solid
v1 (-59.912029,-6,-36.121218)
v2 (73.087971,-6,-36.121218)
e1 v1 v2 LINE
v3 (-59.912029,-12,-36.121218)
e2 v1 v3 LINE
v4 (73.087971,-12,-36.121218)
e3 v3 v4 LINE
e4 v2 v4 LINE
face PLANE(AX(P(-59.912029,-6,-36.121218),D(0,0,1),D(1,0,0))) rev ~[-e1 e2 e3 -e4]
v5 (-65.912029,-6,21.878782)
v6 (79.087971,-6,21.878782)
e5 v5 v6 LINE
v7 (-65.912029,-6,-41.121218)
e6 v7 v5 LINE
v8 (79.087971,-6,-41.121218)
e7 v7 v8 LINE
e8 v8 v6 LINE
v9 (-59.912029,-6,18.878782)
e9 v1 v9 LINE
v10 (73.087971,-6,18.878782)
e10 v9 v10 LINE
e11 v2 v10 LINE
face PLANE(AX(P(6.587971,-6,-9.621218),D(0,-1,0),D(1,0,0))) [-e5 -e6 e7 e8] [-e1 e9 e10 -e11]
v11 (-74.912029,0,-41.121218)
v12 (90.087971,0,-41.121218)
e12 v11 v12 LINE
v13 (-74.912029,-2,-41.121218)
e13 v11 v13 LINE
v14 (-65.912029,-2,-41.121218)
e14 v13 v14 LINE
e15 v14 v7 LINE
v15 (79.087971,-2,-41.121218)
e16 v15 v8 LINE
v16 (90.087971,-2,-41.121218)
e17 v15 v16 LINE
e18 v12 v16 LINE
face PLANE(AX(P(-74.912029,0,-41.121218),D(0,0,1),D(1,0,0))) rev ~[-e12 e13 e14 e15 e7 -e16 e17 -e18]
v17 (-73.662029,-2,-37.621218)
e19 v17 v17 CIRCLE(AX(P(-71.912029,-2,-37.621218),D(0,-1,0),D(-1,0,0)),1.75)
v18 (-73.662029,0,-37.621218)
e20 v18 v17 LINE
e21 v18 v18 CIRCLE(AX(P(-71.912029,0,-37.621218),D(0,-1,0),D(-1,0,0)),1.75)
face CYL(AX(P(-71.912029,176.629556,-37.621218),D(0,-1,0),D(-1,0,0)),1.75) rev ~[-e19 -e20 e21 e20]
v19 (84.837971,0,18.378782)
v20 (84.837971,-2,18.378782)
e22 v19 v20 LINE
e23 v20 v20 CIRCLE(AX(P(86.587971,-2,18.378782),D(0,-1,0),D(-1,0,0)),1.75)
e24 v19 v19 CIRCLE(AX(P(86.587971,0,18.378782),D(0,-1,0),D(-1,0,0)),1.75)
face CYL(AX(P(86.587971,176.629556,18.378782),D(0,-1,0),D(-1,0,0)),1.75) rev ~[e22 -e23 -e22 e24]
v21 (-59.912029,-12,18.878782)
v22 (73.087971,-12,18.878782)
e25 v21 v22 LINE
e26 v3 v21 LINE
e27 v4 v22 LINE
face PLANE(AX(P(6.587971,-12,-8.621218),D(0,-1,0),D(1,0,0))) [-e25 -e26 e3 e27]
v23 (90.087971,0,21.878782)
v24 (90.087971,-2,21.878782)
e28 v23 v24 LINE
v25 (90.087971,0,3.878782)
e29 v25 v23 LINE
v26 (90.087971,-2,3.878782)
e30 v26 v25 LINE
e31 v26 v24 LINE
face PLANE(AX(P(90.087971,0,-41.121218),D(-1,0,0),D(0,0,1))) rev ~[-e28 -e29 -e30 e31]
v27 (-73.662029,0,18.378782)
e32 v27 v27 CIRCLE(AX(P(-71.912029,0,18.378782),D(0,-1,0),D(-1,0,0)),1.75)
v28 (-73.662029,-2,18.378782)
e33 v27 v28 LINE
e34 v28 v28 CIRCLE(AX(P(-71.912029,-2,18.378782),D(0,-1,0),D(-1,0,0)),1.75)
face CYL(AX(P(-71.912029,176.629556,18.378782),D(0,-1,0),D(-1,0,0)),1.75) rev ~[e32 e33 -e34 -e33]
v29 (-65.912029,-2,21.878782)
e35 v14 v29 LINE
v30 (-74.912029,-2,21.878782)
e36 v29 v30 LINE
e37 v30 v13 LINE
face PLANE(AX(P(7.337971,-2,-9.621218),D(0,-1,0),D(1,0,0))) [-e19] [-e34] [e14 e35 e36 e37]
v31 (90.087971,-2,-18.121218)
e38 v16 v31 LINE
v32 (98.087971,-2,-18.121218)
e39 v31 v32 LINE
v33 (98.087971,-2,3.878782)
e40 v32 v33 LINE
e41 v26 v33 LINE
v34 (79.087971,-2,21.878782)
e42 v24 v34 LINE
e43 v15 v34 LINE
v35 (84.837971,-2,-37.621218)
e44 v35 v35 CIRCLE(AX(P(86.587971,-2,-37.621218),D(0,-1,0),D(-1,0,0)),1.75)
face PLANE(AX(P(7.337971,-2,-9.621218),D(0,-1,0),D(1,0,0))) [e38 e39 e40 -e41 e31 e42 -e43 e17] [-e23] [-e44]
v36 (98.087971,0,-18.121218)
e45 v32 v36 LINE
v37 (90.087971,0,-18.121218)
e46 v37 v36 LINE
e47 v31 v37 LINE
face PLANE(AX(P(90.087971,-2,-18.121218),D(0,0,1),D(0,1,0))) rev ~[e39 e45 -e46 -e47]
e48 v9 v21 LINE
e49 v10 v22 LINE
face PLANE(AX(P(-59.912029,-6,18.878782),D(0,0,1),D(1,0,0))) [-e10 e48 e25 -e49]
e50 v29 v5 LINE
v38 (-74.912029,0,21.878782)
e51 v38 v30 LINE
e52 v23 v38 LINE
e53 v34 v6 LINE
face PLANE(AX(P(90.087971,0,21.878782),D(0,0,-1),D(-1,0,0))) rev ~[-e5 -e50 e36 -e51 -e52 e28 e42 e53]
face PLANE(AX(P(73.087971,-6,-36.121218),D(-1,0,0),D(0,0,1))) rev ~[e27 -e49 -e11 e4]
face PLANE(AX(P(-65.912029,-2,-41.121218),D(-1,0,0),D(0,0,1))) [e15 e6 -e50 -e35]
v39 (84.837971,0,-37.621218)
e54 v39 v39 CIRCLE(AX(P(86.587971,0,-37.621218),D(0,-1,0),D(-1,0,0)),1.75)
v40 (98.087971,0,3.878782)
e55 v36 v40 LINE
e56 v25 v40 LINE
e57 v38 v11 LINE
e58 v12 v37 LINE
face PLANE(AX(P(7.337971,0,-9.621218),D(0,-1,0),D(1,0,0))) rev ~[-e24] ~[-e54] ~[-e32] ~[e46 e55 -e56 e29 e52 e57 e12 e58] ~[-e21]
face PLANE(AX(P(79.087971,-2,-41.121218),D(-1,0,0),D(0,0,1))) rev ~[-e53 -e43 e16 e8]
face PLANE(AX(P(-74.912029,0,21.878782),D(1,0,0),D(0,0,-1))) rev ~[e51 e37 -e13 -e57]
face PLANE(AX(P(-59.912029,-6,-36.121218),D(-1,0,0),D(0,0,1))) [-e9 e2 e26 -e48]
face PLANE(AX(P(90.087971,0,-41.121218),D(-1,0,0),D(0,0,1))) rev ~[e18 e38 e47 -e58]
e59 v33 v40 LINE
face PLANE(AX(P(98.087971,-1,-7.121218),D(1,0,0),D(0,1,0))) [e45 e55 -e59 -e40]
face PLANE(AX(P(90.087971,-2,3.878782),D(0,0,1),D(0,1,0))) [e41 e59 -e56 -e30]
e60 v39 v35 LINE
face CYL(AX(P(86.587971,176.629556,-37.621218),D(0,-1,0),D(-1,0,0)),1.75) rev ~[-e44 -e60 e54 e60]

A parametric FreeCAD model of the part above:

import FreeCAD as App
import Part
import Sketcher
from FreeCAD import Vector
Q = App.Units.Quantity

doc = App.newDocument("Part")
body = doc.addObject("PartDesign::Body", "Body")

# Sketch on XZ plane
sketch1 = body.newObject("Sketcher::SketchObject", "Sketch")
sketch1.AttachmentSupport = (doc.getObject("XZ_Plane"), [""])
sketch1.MapMode = "FlatFace"
sketch1.addGeometry(Part.LineSegment(Vector(-75, 22, 0), Vector(-75, -41, 0)), False)
sketch1.addGeometry(Part.LineSegment(Vector(-75, -41, 0), Vector(90, -41, 0)), False)
sketch1.addGeometry(Part.LineSegment(Vector(90, -41, 0), Vector(90, 22, 0)), False)
sketch1.addGeometry(Part.LineSegment(Vector(90, 22, 0), Vector(-75, 22, 0)), False)
sketch1.addConstraint(Sketcher.Constraint("Coincident", 0, 2, 1, 1))
sketch1.addConstraint(Sketcher.Constraint("Coincident", 1, 2, 2, 1))
sketch1.addConstraint(Sketcher.Constraint("Coincident", 2, 2, 3, 1))
sketch1.addConstraint(Sketcher.Constraint("Coincident", 3, 2, 0, 1))
sketch1.addConstraint(Sketcher.Constraint("Vertical", 0))
sketch1.addConstraint(Sketcher.Constraint("Horizontal", 1))
sketch1.addConstraint(Sketcher.Constraint("Vertical", 2))
sketch1.addConstraint(Sketcher.Constraint("Horizontal", 3))
sketch1.addConstraint(Sketcher.Constraint("DistanceX", 1, 1, 1, 2, Q("165 mm")))
sketch1.addConstraint(Sketcher.Constraint("DistanceY", 0, 2, 0, 1, Q("63 mm")))
sketch1.addConstraint(Sketcher.Constraint("DistanceX", 0, 2, -1, 1, Q("74.912029 mm")))
sketch1.addConstraint(Sketcher.Constraint("DistanceY", 0, 2, -1, 1, Q("41.121218 mm")))
pad1 = body.newObject("PartDesign::Pad", "Pad")
pad1.Profile = sketch1
pad1.Length = 2

# Sketch on XZ plane
sketch2 = body.newObject("Sketcher::SketchObject", "Sketch001")
sketch2.AttachmentSupport = (doc.getObject("XZ_Plane"), [""])
sketch2.MapMode = "FlatFace"
sketch2.addGeometry(Part.Circle(Vector(-71.9, 18.4, 0), Vector(0, 0, 1), 1.8), False)
sketch2.addGeometry(Part.Circle(Vector(86.6, 18.4, 0), Vector(0, 0, 1), 1.8), False)
sketch2.addGeometry(Part.Circle(Vector(86.6, -37.6, 0), Vector(0, 0, 1), 1.8), False)
sketch2.addGeometry(Part.Circle(Vector(-71.9, -37.6, 0), Vector(0, 0, 1), 1.8), False)
sketch2.addConstraint(Sketcher.Constraint("Equal", 0, 1))
sketch2.addConstraint(Sketcher.Constraint("Equal", 1, 2))
sketch2.addConstraint(Sketcher.Constraint("Equal", 2, 3))
sketch2.addConstraint(Sketcher.Constraint("Horizontal", 0, 3, 1, 3))
sketch2.addConstraint(Sketcher.Constraint("Horizontal", 2, 3, 3, 3))
sketch2.addConstraint(Sketcher.Constraint("Vertical", 1, 3, 2, 3))
sketch2.addConstraint(Sketcher.Constraint("Vertical", 0, 3, 3, 3))
sketch2.addConstraint(Sketcher.Constraint("Diameter", 0, Q("3.5 mm")))
sketch2.addConstraint(Sketcher.Constraint("DistanceY", 2, 3, 1, 3, Q("56 mm")))
sketch2.addConstraint(Sketcher.Constraint("DistanceX", 0, 3, 1, 3, Q("158.5 mm")))
sketch2.addConstraint(Sketcher.Constraint("DistanceX", 0, 3, -1, 1, Q("71.912029 mm")))
sketch2.addConstraint(Sketcher.Constraint("DistanceY", -1, 1, 0, 3, Q("18.378782 mm")))
doc.recompute()
hole = body.newObject("PartDesign::Hole", "Hole")
hole.Profile = sketch2
hole.ThreadType = "None"
hole.Diameter = 3.5
hole.DepthType = "ThroughAll"
hole.Reversed = True

# Sketch on XZ plane
sketch3 = body.newObject("Sketcher::SketchObject", "Sketch002")
sketch3.AttachmentSupport = (doc.getObject("XZ_Plane"), [""])
sketch3.MapMode = "FlatFace"
sketch3.AttachmentOffset = App.Placement(Vector(0, 0, 2), App.Rotation())
sketch3.addGeometry(Part.LineSegment(Vector(-66, 22, 0), Vector(-66, -41, 0)), False)
sketch3.addGeometry(Part.LineSegment(Vector(-66, -41, 0), Vector(79, -41, 0)), False)
sketch3.addGeometry(Part.LineSegment(Vector(79, -41, 0), Vector(79, 22, 0)), False)
sketch3.addGeometry(Part.LineSegment(Vector(79, 22, 0), Vector(-66, 22, 0)), False)
sketch3.addConstraint(Sketcher.Constraint("Coincident", 0, 2, 1, 1))
sketch3.addConstraint(Sketcher.Constraint("Coincident", 1, 2, 2, 1))
sketch3.addConstraint(Sketcher.Constraint("Coincident", 2, 2, 3, 1))
sketch3.addConstraint(Sketcher.Constraint("Coincident", 3, 2, 0, 1))
sketch3.addConstraint(Sketcher.Constraint("Vertical", 0))
sketch3.addConstraint(Sketcher.Constraint("Horizontal", 1))
sketch3.addConstraint(Sketcher.Constraint("Vertical", 2))
sketch3.addConstraint(Sketcher.Constraint("Horizontal", 3))
sketch3.addConstraint(Sketcher.Constraint("DistanceX", 1, 1, 1, 2, Q("145 mm")))
sketch3.addConstraint(Sketcher.Constraint("DistanceY", 0, 2, 0, 1, Q("63 mm")))
sketch3.addConstraint(Sketcher.Constraint("DistanceX", 0, 2, -1, 1, Q("65.912029 mm")))
sketch3.addConstraint(Sketcher.Constraint("DistanceY", 0, 2, -1, 1, Q("41.121218 mm")))
pad2 = body.newObject("PartDesign::Pad", "Pad001")
pad2.Profile = sketch3
pad2.Length = 4

# Sketch on YZ plane
sketch4 = body.newObject("Sketcher::SketchObject", "Sketch003")
sketch4.AttachmentSupport = (doc.getObject("YZ_Plane"), [""])
sketch4.MapMode = "FlatFace"
sketch4.AttachmentOffset = App.Placement(Vector(0, 0, 90.087971), App.Rotation())
sketch4.addGeometry(Part.LineSegment(Vector(-2, 3.9, 0), Vector(-2, -18.1, 0)), False)
sketch4.addGeometry(Part.LineSegment(Vector(-2, -18.1, 0), Vector(0, -18.1, 0)), False)
sketch4.addGeometry(Part.LineSegment(Vector(0, -18.1, 0), Vector(0, 3.9, 0)), False)
sketch4.addGeometry(Part.LineSegment(Vector(0, 3.9, 0), Vector(-2, 3.9, 0)), False)
sketch4.addConstraint(Sketcher.Constraint("Coincident", 0, 2, 1, 1))
sketch4.addConstraint(Sketcher.Constraint("Coincident", 1, 2, 2, 1))
sketch4.addConstraint(Sketcher.Constraint("Coincident", 2, 2, 3, 1))
sketch4.addConstraint(Sketcher.Constraint("Coincident", 3, 2, 0, 1))
sketch4.addConstraint(Sketcher.Constraint("Vertical", 0))
sketch4.addConstraint(Sketcher.Constraint("Horizontal", 1))
sketch4.addConstraint(Sketcher.Constraint("Vertical", 2))
sketch4.addConstraint(Sketcher.Constraint("Horizontal", 3))
sketch4.addConstraint(Sketcher.Constraint("PointOnObject", 1, 2, -2))
sketch4.addConstraint(Sketcher.Constraint("DistanceX", 1, 1, 1, 2, Q("2 mm")))
sketch4.addConstraint(Sketcher.Constraint("DistanceY", 0, 2, 0, 1, Q("22 mm")))
sketch4.addConstraint(Sketcher.Constraint("DistanceY", 0, 2, -1, 1, Q("18.121218 mm")))
pad3 = body.newObject("PartDesign::Pad", "Pad002")
pad3.Profile = sketch4
pad3.Length = 8

# Sketch on XZ plane
sketch5 = body.newObject("Sketcher::SketchObject", "Sketch004")
sketch5.AttachmentSupport = (doc.getObject("XZ_Plane"), [""])
sketch5.MapMode = "FlatFace"
sketch5.AttachmentOffset = App.Placement(Vector(0, 0, 6), App.Rotation())
sketch5.addGeometry(Part.LineSegment(Vector(-60, 19, 0), Vector(-60, -36, 0)), False)
sketch5.addGeometry(Part.LineSegment(Vector(-60, -36, 0), Vector(73, -36, 0)), False)
sketch5.addGeometry(Part.LineSegment(Vector(73, -36, 0), Vector(73, 19, 0)), False)
sketch5.addGeometry(Part.LineSegment(Vector(73, 19, 0), Vector(-60, 19, 0)), False)
sketch5.addConstraint(Sketcher.Constraint("Coincident", 0, 2, 1, 1))
sketch5.addConstraint(Sketcher.Constraint("Coincident", 1, 2, 2, 1))
sketch5.addConstraint(Sketcher.Constraint("Coincident", 2, 2, 3, 1))
sketch5.addConstraint(Sketcher.Constraint("Coincident", 3, 2, 0, 1))
sketch5.addConstraint(Sketcher.Constraint("Vertical", 0))
sketch5.addConstraint(Sketcher.Constraint("Horizontal", 1))
sketch5.addConstraint(Sketcher.Constraint("Vertical", 2))
sketch5.addConstraint(Sketcher.Constraint("Horizontal", 3))
sketch5.addConstraint(Sketcher.Constraint("DistanceX", 1, 1, 1, 2, Q("133 mm")))
sketch5.addConstraint(Sketcher.Constraint("DistanceY", 0, 2, 0, 1, Q("55 mm")))
sketch5.addConstraint(Sketcher.Constraint("DistanceX", 0, 2, -1, 1, Q("59.912029 mm")))
sketch5.addConstraint(Sketcher.Constraint("DistanceY", 0, 2, -1, 1, Q("36.121218 mm")))
pad4 = body.newObject("PartDesign::Pad", "Pad003")
pad4.Profile = sketch5
pad4.Length = 6

doc.recompute()
